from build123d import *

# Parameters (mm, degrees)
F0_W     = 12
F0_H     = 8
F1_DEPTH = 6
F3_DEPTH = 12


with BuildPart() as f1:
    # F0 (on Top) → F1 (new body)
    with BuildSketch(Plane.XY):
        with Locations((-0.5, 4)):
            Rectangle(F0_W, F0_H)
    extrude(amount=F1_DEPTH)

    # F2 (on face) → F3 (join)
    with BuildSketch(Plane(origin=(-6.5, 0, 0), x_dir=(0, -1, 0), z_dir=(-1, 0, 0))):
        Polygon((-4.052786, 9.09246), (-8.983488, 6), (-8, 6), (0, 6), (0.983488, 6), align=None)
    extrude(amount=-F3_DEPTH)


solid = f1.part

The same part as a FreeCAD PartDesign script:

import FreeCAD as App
import Part
import Sketcher

V = App.Vector


def add_polygon(sketch, points):
    """Adds a closed chain of lines whose ends are joined by coincident constraints."""
    first, n = sketch.GeometryCount, len(points)
    for a, b in zip(points, points[1:] + points[:1]):
        sketch.addGeometry(Part.LineSegment(App.Vector(*a, 0), App.Vector(*b, 0)), False)
    for i in range(n):
        sketch.addConstraint(Sketcher.Constraint("Coincident", first + i, 2, first + (i + 1) % n, 1))

doc = App.newDocument("Part")
body = doc.addObject("PartDesign::Body", "Body")

sketch1 = body.newObject("Sketcher::SketchObject", "Sketch")
sketch1.AttachmentSupport = (doc.getObject("XY_Plane"), [""])
sketch1.MapMode = "FlatFace"
add_polygon(sketch1, [(-6, 8), (-6, 0), (6, 0), (6, 8)])
sketch1.addConstraint([
    Sketcher.Constraint("Vertical", 0),
    Sketcher.Constraint("Horizontal", 1),
    Sketcher.Constraint("Vertical", 2),
    Sketcher.Constraint("Horizontal", 3),
    Sketcher.Constraint("PointOnObject", 0, 2, -1),
    Sketcher.Constraint("DistanceX", 1, 1, 1, 2, 12.0),
    Sketcher.Constraint("DistanceY", 0, 2, 0, 1, 8.0),
    Sketcher.Constraint("DistanceX", 0, 2, -1, 1, 6.5),
])
pad1 = body.newObject("PartDesign::Pad", "Pad")
pad1.Profile = sketch1
pad1.Length = 6

sketch2 = body.newObject("Sketcher::SketchObject", "Sketch001")
sketch2.AttachmentSupport = (doc.getObject("YZ_Plane"), [""])
sketch2.MapMode = "FlatFace"
sketch2.AttachmentOffset = App.Placement(V(0, 0, -6.5), App.Rotation())
add_polygon(sketch2, [(4, 9), (9, 6), (-1, 6)])
sketch2.addConstraint([
    Sketcher.Constraint("Horizontal", 1),
    Sketcher.Constraint("DistanceY", -1, 1, 0, 2, 6.0),
    Sketcher.Constraint("DistanceX", 2, 2, 0, 2, 4.930702),
    Sketcher.Constraint("DistanceX", 1, 2, 1, 1, 9.966976),
    Sketcher.Constraint("DistanceX", 1, 2, -1, 1, 0.983488),
    Sketcher.Constraint("DistanceY", -1, 1, 2, 2, 9.09246),
])
pad2 = body.newObject("PartDesign::Pad", "Pad001")
pad2.Profile = sketch2
pad2.Length = 12

doc.recompute()
